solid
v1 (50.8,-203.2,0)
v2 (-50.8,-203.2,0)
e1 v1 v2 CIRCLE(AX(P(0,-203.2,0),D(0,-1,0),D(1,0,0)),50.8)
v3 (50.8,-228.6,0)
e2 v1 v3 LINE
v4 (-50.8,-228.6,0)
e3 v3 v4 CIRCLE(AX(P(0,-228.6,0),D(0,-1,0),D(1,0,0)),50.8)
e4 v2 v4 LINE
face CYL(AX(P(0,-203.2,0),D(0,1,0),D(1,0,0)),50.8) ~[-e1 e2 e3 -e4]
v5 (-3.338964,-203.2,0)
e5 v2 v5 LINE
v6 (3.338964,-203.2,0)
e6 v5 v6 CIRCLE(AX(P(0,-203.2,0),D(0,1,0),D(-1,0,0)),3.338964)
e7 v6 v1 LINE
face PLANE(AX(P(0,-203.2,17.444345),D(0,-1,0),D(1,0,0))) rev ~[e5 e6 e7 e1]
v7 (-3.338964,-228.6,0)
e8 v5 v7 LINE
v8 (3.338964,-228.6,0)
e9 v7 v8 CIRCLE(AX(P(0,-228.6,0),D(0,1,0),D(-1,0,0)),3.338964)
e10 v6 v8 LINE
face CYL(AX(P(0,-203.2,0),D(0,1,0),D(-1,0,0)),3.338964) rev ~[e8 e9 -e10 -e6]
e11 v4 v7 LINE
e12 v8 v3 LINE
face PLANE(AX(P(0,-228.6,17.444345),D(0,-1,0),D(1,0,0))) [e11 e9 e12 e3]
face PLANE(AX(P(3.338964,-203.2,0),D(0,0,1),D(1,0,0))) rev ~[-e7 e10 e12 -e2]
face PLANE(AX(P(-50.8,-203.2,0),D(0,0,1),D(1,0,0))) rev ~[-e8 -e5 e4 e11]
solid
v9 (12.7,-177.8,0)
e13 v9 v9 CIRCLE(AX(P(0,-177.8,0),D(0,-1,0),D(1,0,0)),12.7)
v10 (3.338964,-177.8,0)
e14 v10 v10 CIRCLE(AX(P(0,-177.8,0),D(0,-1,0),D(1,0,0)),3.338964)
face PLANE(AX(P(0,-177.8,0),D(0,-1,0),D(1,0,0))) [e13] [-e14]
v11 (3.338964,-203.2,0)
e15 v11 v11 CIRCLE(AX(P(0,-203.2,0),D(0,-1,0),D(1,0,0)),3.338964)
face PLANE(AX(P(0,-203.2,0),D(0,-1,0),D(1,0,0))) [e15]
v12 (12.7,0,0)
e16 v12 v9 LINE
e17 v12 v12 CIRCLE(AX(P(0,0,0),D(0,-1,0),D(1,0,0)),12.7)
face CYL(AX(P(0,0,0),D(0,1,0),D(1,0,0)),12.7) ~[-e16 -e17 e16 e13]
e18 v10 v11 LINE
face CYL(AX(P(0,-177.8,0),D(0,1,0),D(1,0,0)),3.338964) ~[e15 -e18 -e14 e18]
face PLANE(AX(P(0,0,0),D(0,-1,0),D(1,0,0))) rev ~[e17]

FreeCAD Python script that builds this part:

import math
import FreeCAD as App
import Part
import Sketcher
from FreeCAD import Vector
Q = App.Units.Quantity

doc = App.newDocument("Part")
params = doc.addObject("Spreadsheet::Sheet", "Params")
for row, (alias, value) in enumerate([
    ("sketch1_diameter", "1 in"),
    ("pad1_length", "7 in"),
    ("pad2_length", "1 in"),
    ("sketch3_radius", "2 in"),
    ("pad3_length", "1 in"),
], start=1):
    params.set(f"A{row}", alias)
    params.set(f"B{row}", "=" + value)
    params.setAlias(f"B{row}", alias)

body = doc.addObject("PartDesign::Body", "Body")

# Sketch on XZ plane
sketch1 = doc.addObject("Sketcher::SketchObject", "Sketch")
body.addObject(sketch1)
sketch1.AttachmentSupport = (doc.XZ_Plane, [""])
sketch1.MapMode = "FlatFace"
sketch1.addGeometry(Part.Circle(Vector(0, 0, 0), Vector(0, 0, 1), 13), False)
sketch1.addConstraint([
    Sketcher.Constraint("Coincident", 0, 3, -1, 1),
    Sketcher.Constraint("Diameter", 0, Q("1 in")),
])
sketch1.setExpression("Constraints[1]", "Params.sketch1_diameter")
pad1 = doc.addObject("PartDesign::Pad", "Pad")
body.addObject(pad1)
pad1.Profile = sketch1
pad1.setExpression("Length", "Params.pad1_length")

# Sketch on XZ plane
sketch2 = doc.addObject("Sketcher::SketchObject", "Sketch001")
body.addObject(sketch2)
sketch2.AttachmentSupport = (doc.XZ_Plane, [""])
sketch2.MapMode = "FlatFace"
sketch2.AttachmentOffset = App.Placement(Vector(0, 0, 7 * 25.4), App.Rotation())
sketch2.addGeometry(Part.Circle(Vector(0, 0, 0), Vector(0, 0, 1), 3.3), False)
sketch2.addConstraint([
    Sketcher.Constraint("Coincident", 0, 3, -1, 1),
    Sketcher.Constraint("Diameter", 0, Q("6.677928 mm")),
])
pad2 = doc.addObject("PartDesign::Pad", "Pad001")
body.addObject(pad2)
pad2.Profile = sketch2
pad2.setExpression("Length", "Params.pad2_length")
body2 = doc.addObject("PartDesign::Body", "Body001")

# Sketch on XZ plane
sketch3 = doc.addObject("Sketcher::SketchObject", "Sketch002")
body2.addObject(sketch3)
sketch3.AttachmentSupport = (doc.getObject("XZ_Plane001"), [""])
sketch3.MapMode = "FlatFace"
sketch3.AttachmentOffset = App.Placement(Vector(0, 0, 8 * 25.4), App.Rotation())
sketch3.addGeometry([
    Part.LineSegment(Vector(3.3, 0, 0), Vector(50.8, 0, 0)),
    Part.ArcOfCircle(Part.Circle(Vector(0, 0, 0), Vector(0, 0, 1), 50.8), math.radians(0), math.radians(180)),
    Part.LineSegment(Vector(-50.8, 0, 0), Vector(-3.3, 0, 0)),
    Part.ArcOfCircle(Part.Circle(Vector(0, 0, 0), Vector(0, 0, 1), 3.3), math.radians(0), math.radians(180)),
], False)
sketch3.addConstraint([
    Sketcher.Constraint("Coincident", 0, 2, 1, 1),
    Sketcher.Constraint("Coincident", 1, 2, 2, 1),
    Sketcher.Constraint("Coincident", 2, 2, 3, 2),
    Sketcher.Constraint("Coincident", 3, 1, 0, 1),
    Sketcher.Constraint("Horizontal", 0),
    Sketcher.Constraint("Horizontal", 2),
    Sketcher.Constraint("Coincident", 1, 3, -1, 1),
    Sketcher.Constraint("Coincident", 3, 3, -1, 1),
    Sketcher.Constraint("PointOnObject", 0, 2, -1),
    Sketcher.Constraint("PointOnObject", 1, 2, -1),
    Sketcher.Constraint("Radius", 1, Q("2 in")),
    Sketcher.Constraint("Radius", 3, Q("3.338964 mm")),
])
sketch3.setExpression("Constraints[10]", "Params.sketch3_radius")
pad3 = doc.addObject("PartDesign::Pad", "Pad002")
body2.addObject(pad3)
pad3.Profile = sketch3
pad3.setExpression("Length", "Params.pad3_length")

doc.recompute()
